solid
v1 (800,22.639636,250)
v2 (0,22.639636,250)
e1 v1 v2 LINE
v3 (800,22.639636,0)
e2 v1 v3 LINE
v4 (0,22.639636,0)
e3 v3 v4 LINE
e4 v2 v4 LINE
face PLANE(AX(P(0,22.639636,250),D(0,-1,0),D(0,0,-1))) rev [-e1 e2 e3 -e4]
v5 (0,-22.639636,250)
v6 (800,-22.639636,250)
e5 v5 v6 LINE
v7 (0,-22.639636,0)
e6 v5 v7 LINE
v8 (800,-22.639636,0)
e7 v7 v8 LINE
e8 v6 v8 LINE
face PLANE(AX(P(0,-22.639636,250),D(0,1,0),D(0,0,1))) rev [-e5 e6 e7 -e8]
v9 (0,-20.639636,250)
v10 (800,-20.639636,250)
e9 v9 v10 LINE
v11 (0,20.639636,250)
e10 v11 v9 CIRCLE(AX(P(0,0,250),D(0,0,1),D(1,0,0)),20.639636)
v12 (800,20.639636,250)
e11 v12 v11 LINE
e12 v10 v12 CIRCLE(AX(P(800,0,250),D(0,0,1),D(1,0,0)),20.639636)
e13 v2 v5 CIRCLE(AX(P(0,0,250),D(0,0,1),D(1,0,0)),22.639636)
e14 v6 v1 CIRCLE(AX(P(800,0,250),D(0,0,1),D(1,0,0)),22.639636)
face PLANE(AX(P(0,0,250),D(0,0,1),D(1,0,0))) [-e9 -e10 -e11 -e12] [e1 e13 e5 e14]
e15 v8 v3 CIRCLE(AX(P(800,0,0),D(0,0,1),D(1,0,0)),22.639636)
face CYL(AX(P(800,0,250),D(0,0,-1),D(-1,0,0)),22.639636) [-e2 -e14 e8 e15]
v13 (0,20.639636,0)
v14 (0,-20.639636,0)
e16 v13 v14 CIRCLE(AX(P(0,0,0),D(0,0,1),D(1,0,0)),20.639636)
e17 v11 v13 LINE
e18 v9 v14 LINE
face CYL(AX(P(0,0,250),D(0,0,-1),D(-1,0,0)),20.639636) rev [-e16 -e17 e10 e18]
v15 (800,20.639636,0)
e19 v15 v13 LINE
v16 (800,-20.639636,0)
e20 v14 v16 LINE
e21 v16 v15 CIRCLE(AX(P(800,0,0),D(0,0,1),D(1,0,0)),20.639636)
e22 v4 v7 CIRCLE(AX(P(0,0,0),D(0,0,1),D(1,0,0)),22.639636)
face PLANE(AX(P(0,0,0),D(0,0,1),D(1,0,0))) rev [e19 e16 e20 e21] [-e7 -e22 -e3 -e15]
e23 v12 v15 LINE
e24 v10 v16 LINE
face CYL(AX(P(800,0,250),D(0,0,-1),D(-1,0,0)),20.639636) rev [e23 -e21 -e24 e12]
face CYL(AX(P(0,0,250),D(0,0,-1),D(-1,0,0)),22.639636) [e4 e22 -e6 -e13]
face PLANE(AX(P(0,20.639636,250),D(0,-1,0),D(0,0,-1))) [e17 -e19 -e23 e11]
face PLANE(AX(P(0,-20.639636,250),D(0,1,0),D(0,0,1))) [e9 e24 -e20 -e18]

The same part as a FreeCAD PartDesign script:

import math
import FreeCAD as App
import Part
import Sketcher
from FreeCAD import Vector

doc = App.newDocument("Part")
params = doc.addObject("Spreadsheet::Sheet", "Params")
for row, (alias, value) in enumerate([
    ("sketch1_width", "800 mm"),
    ("pad1_length", "250 mm"),
], start=1):
    params.set(f"A{row}", alias)
    params.set(f"B{row}", "=" + value)
    params.setAlias(f"B{row}", alias)

body = doc.addObject("PartDesign::Body", "Body")

sketch1 = doc.addObject("Sketcher::SketchObject", "Sketch")
body.addObject(sketch1)
sketch1.AttachmentSupport = (doc.XY_Plane, [""])
sketch1.MapMode = "FlatFace"
sketch1.addGeometry(Part.LineSegment(Vector(800, 23, 0), Vector(0, 23, 0)), False)
sketch1.addGeometry(Part.ArcOfCircle(Part.Circle(Vector(0, 0, 0), Vector(0, 0, 1), 23), math.radians(90), math.radians(270)), False)
sketch1.addGeometry(Part.LineSegment(Vector(0, -23, 0), Vector(800, -23, 0)), False)
sketch1.addGeometry(Part.ArcOfCircle(Part.Circle(Vector(800, 0, 0), Vector(0, 0, 1), 23), math.radians(-90), math.radians(90)), False)
sketch1.addGeometry(Part.LineSegment(Vector(0, 21, 0), Vector(800, 21, 0)), False)
sketch1.addGeometry(Part.ArcOfCircle(Part.Circle(Vector(800, 0, 0), Vector(0, 0, 1), 21), math.radians(-90), math.radians(90)), False)
sketch1.addGeometry(Part.LineSegment(Vector(800, -21, 0), Vector(0, -21, 0)), False)
sketch1.addGeometry(Part.ArcOfCircle(Part.Circle(Vector(0, 0, 0), Vector(0, 0, 1), 21), math.radians(90), math.radians(270)), False)
sketch1.addConstraint(Sketcher.Constraint("Tangent", 0, 2, 1, 1))
sketch1.addConstraint(Sketcher.Constraint("Tangent", 1, 2, 2, 1))
sketch1.addConstraint(Sketcher.Constraint("Tangent", 2, 2, 3, 1))
sketch1.addConstraint(Sketcher.Constraint("Tangent", 3, 2, 0, 1))
sketch1.addConstraint(Sketcher.Constraint("Tangent", 4, 2, 5, 2))
sketch1.addConstraint(Sketcher.Constraint("Tangent", 5, 1, 6, 1))
sketch1.addConstraint(Sketcher.Constraint("Tangent", 6, 2, 7, 2))
sketch1.addConstraint(Sketcher.Constraint("Tangent", 7, 1, 4, 1))
sketch1.addConstraint(Sketcher.Constraint("Horizontal", 0))
sketch1.addConstraint(Sketcher.Constraint("Horizontal", 2))
sketch1.addConstraint(Sketcher.Constraint("Horizontal", 4))
sketch1.addConstraint(Sketcher.Constraint("Horizontal", 6))
sketch1.addConstraint(Sketcher.Constraint("Coincident", 1, 3, -1, 1))
sketch1.addConstraint(Sketcher.Constraint("Coincident", 7, 3, -1, 1))
sketch1.addConstraint(Sketcher.Constraint("Vertical", 5, 3, 2, 2))
sketch1.addConstraint(Sketcher.Constraint("DistanceX", 0, 2, 0, 1, 800.0))
sketch1.addConstraint(Sketcher.Constraint("DistanceY", 4, 2, 3, 2, 2.0))
sketch1.addConstraint(Sketcher.Constraint("Radius", 1, 22.639636))
sketch1.setExpression("Constraints[15]", "Params.sketch1_width")
pad1 = doc.addObject("PartDesign::Pad", "Pad")
body.addObject(pad1)
pad1.Profile = sketch1
pad1.setExpression("Length", "Params.pad1_length")

doc.recompute()
